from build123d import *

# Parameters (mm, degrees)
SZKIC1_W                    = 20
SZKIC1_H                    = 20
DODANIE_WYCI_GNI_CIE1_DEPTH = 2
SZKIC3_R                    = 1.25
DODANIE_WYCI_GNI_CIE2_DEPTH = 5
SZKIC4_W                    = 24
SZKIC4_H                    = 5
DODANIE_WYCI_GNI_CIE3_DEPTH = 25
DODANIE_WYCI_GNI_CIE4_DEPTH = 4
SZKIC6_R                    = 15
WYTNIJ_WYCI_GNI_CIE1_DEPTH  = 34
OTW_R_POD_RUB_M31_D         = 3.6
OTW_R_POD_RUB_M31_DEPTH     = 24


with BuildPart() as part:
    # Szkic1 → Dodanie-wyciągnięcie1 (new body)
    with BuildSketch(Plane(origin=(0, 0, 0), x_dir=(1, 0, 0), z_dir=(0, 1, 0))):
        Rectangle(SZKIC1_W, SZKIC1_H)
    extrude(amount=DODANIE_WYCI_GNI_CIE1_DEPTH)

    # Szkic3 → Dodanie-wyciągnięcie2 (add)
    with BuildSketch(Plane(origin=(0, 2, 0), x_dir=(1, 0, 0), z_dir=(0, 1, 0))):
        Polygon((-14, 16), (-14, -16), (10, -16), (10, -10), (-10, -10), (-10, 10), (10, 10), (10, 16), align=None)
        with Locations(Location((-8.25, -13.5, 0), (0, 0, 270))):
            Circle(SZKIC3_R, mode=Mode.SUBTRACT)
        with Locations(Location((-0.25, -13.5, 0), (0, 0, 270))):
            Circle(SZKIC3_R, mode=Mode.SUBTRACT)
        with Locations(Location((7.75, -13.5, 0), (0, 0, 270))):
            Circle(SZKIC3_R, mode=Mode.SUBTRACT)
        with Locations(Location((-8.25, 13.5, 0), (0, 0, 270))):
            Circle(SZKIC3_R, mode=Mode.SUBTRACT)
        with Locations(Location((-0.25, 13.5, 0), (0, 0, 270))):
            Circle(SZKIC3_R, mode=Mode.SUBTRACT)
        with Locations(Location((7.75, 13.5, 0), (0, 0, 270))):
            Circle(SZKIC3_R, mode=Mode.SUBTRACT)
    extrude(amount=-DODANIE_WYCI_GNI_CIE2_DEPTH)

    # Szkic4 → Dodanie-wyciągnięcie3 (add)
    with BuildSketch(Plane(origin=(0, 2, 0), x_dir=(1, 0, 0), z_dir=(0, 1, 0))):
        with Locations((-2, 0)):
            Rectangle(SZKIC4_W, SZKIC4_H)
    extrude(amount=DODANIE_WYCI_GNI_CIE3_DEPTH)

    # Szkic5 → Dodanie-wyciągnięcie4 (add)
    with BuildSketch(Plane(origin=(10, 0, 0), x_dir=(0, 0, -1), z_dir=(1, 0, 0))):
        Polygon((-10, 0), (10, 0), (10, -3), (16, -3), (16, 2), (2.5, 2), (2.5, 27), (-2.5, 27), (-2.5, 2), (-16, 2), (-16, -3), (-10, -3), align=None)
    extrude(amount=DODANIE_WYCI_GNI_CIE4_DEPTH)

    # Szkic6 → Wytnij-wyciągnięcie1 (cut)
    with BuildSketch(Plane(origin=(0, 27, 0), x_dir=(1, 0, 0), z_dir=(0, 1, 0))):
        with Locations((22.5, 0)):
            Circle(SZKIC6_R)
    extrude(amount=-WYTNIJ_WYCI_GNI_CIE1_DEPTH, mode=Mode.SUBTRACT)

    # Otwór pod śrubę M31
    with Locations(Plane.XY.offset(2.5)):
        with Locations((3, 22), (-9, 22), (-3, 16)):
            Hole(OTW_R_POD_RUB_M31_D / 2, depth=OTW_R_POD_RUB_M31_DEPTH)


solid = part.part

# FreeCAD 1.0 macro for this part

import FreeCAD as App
import Part
import Sketcher
from FreeCAD import Vector


def add_polygon(sketch, points):
    """Adds a closed chain of lines whose ends are joined by coincident constraints."""
    first, n = sketch.GeometryCount, len(points)
    for a, b in zip(points, points[1:] + points[:1]):
        sketch.addGeometry(Part.LineSegment(App.Vector(*a, 0), App.Vector(*b, 0)), False)
    for i in range(n):
        sketch.addConstraint(Sketcher.Constraint("Coincident", first + i, 2, first + (i + 1) % n, 1))

doc = App.newDocument("Part")
params = doc.addObject("Spreadsheet::Sheet", "Params")
for row, (alias, value) in enumerate([
    ("sketch1_width", "20 mm"),
    ("pad1_length", "2 mm"),
    ("sketch2_diameter", "2.5 mm"),
    ("sketch2_width", "24 mm"),
    ("sketch2_width2", "20 mm"),
    ("sketch2_height", "32 mm"),
    ("pad2_length", "5 mm"),
    ("sketch3_width", "24 mm"),
    ("sketch3_height", "5 mm"),
    ("pad3_length", "25 mm"),
    ("sketch4_width", "3 mm"),
    ("sketch4_width2", "5 mm"),
    ("sketch4_width3", "25 mm"),
    ("sketch4_height", "20 mm"),
    ("sketch4_height2", "6 mm"),
    ("pad4_length", "4 mm"),
    ("sketch5_diameter", "30 mm"),
    ("pocket1_length", "34 mm"),
    ("sketch6_diameter", "3.6 mm"),
    ("hole_diameter", "3.6 mm"),
    ("hole_depth", "24 mm"),
], start=1):
    params.set(f"A{row}", alias)
    params.set(f"B{row}", "=" + value)
    params.setAlias(f"B{row}", alias)

body = doc.addObject("PartDesign::Body", "Body")

sketch1 = doc.addObject("Sketcher::SketchObject", "Sketch")
body.addObject(sketch1)
sketch1.AttachmentSupport = (doc.XZ_Plane, [""])
sketch1.MapMode = "FlatFace"
add_polygon(sketch1, [(-10, -10), (-10, 10), (10, 10), (10, -10)])
sketch1.addConstraint([
    Sketcher.Constraint("Vertical", 0),
    Sketcher.Constraint("Horizontal", 1),
    Sketcher.Constraint("Vertical", 2),
    Sketcher.Constraint("Horizontal", 3),
    Sketcher.Constraint("Symmetric", 0, 2, 2, 2, -1, 1),
    Sketcher.Constraint("Equal", 3, 0),
    Sketcher.Constraint("DistanceX", 1, 1, 1, 2, 20.0),
])
sketch1.setExpression("Constraints[10]", "Params.sketch1_width")
pad1 = doc.addObject("PartDesign::Pad", "Pad")
body.addObject(pad1)
pad1.Profile = sketch1
pad1.setExpression("Length", "Params.pad1_length")
pad1.Reversed = True

sketch2 = doc.addObject("Sketcher::SketchObject", "Sketch001")
body.addObject(sketch2)
sketch2.AttachmentSupport = (doc.XZ_Plane, [""])
sketch2.MapMode = "FlatFace"
sketch2.AttachmentOffset = App.Placement(Vector(0, 0, -2), App.Rotation())
add_polygon(sketch2, [(-14, -16), (-14, 16), (10, 16), (10, 10), (-10, 10), (-10, -10), (10, -10), (10, -16)])
sketch2.addGeometry(Part.Circle(Vector(-8.25, 13.5, 0), Vector(0, 0, 1), 1.25), False)
sketch2.addGeometry(Part.Circle(Vector(-0.25, 13.5, 0), Vector(0, 0, 1), 1.25), False)
sketch2.addGeometry(Part.Circle(Vector(7.75, 13.5, 0), Vector(0, 0, 1), 1.25), False)
sketch2.addGeometry(Part.Circle(Vector(-8.25, -13.5, 0), Vector(0, 0, 1), 1.25), False)
sketch2.addGeometry(Part.Circle(Vector(-0.25, -13.5, 0), Vector(0, 0, 1), 1.25), False)
sketch2.addGeometry(Part.Circle(Vector(7.75, -13.5, 0), Vector(0, 0, 1), 1.25), False)
sketch2.addConstraint([
    Sketcher.Constraint("Vertical", 0),
    Sketcher.Constraint("Horizontal", 1),
    Sketcher.Constraint("Vertical", 2),
    Sketcher.Constraint("Horizontal", 3),
    Sketcher.Constraint("Vertical", 4),
    Sketcher.Constraint("Horizontal", 5),
    Sketcher.Constraint("Vertical", 6),
    Sketcher.Constraint("Horizontal", 7),
    Sketcher.Constraint("Equal", 8, 9),
    Sketcher.Constraint("Equal", 9, 10),
    Sketcher.Constraint("Equal", 10, 11),
    Sketcher.Constraint("Equal", 11, 12),
    Sketcher.Constraint("Equal", 12, 13),
    Sketcher.Constraint("Symmetric", 2, 2, 4, 2, -1, 1),
    Sketcher.Constraint("Symmetric", 8, 3, 11, 3, -1),
    Sketcher.Constraint("Symmetric", 9, 3, 12, 3, -1),
    Sketcher.Constraint("Symmetric", 10, 3, 13, 3, -1),
    Sketcher.Constraint("Symmetric", 1, 2, 6, 2, -1),
    Sketcher.Constraint("Horizontal", 8, 3, 9, 3),
    Sketcher.Constraint("Horizontal", 9, 3, 10, 3),
    Sketcher.Constraint("Equal", 5, 4),
    Sketcher.Constraint("Diameter", 8, 2.5),
    Sketcher.Constraint("DistanceX", 1, 1, 1, 2, 24.0),
    Sketcher.Constraint("DistanceX", 3, 2, 3, 1, 20.0),
    Sketcher.Constraint("DistanceY", 0, 1, 0, 2, 32.0),
    Sketcher.Constraint("DistanceX", 8, 3, 9, 3, 8.0),
    Sketcher.Constraint("DistanceX", 9, 3, 10, 3, 8.0),
    Sketcher.Constraint("DistanceY", 11, 3, 8, 3, 27.0),
    Sketcher.Constraint("DistanceX", 8, 3, -1, 1, 8.25),
])
sketch2.setExpression("Constraints[29]", "Params.sketch2_diameter")
sketch2.setExpression("Constraints[30]", "Params.sketch2_width")
sketch2.setExpression("Constraints[31]", "Params.sketch2_width2")
sketch2.setExpression("Constraints[32]", "Params.sketch2_height")
pad2 = doc.addObject("PartDesign::Pad", "Pad001")
body.addObject(pad2)
pad2.Profile = sketch2
pad2.setExpression("Length", "Params.pad2_length")

sketch3 = doc.addObject("Sketcher::SketchObject", "Sketch002")
body.addObject(sketch3)
sketch3.AttachmentSupport = (doc.XZ_Plane, [""])
sketch3.MapMode = "FlatFace"
sketch3.AttachmentOffset = App.Placement(Vector(0, 0, -2), App.Rotation())
add_polygon(sketch3, [(-14, -2.5), (-14, 2.5), (10, 2.5), (10, -2.5)])
sketch3.addConstraint([
    Sketcher.Constraint("Vertical", 0),
    Sketcher.Constraint("Horizontal", 1),
    Sketcher.Constraint("Vertical", 2),
    Sketcher.Constraint("Horizontal", 3),
    Sketcher.Constraint("DistanceX", 1, 1, 1, 2, 24.0),
    Sketcher.Constraint("DistanceY", 0, 1, 0, 2, 5.0),
    Sketcher.Constraint("DistanceX", 0, 2, -1, 1, 14.0),
    Sketcher.Constraint("DistanceY", -1, 1, 0, 2, 2.5),
])
sketch3.setExpression("Constraints[8]", "Params.sketch3_width")
sketch3.setExpression("Constraints[9]", "Params.sketch3_height")
pad3 = doc.addObject("PartDesign::Pad", "Pad002")
body.addObject(pad3)
pad3.Profile = sketch3
pad3.setExpression("Length", "Params.pad3_length")
pad3.Reversed = True

sketch4 = doc.addObject("Sketcher::SketchObject", "Sketch003")
body.addObject(sketch4)
sketch4.AttachmentSupport = (doc.YZ_Plane, [""])
sketch4.MapMode = "FlatFace"
sketch4.AttachmentOffset = App.Placement(Vector(0, 0, 10), App.Rotation())
add_polygon(sketch4, [(0, 10), (0, -10), (-3, -10), (-3, -16), (2, -16), (2, -2.5), (27, -2.5), (27, 2.5), (2, 2.5), (2, 16), (-3, 16), (-3, 10)])
sketch4.addConstraint([
    Sketcher.Constraint("Vertical", 0),
    Sketcher.Constraint("Horizontal", 1),
    Sketcher.Constraint("Vertical", 2),
    Sketcher.Constraint("Horizontal", 3),
    Sketcher.Constraint("Vertical", 4),
    Sketcher.Constraint("Horizontal", 5),
    Sketcher.Constraint("Vertical", 6),
    Sketcher.Constraint("Horizontal", 7),
    Sketcher.Constraint("Vertical", 8),
    Sketcher.Constraint("Horizontal", 9),
    Sketcher.Constraint("Vertical", 10),
    Sketcher.Constraint("Horizontal", 11),
    Sketcher.Constraint("Symmetric", 0, 2, 11, 2, -1, 1),
    Sketcher.Constraint("Symmetric", 4, 2, 7, 2, -1),
    Sketcher.Constraint("Symmetric", 2, 2, 9, 2, -1),
    Sketcher.Constraint("Equal", 9, 6),
    Sketcher.Constraint("DistanceX", 1, 2, 1, 1, 3.0),
    Sketcher.Constraint("DistanceX", 3, 1, 3, 2, 5.0),
    Sketcher.Constraint("DistanceX", 5, 1, 5, 2, 25.0),
    Sketcher.Constraint("DistanceY", 0, 2, 0, 1, 20.0),
    Sketcher.Constraint("DistanceY", 2, 2, 2, 1, 6.0),
])
sketch4.setExpression("Constraints[28]", "Params.sketch4_width")
sketch4.setExpression("Constraints[29]", "Params.sketch4_width2")
sketch4.setExpression("Constraints[30]", "Params.sketch4_width3")
sketch4.setExpression("Constraints[31]", "Params.sketch4_height")
sketch4.setExpression("Constraints[32]", "Params.sketch4_height2")
pad4 = doc.addObject("PartDesign::Pad", "Pad003")
body.addObject(pad4)
pad4.Profile = sketch4
pad4.setExpression("Length", "Params.pad4_length")

sketch5 = doc.addObject("Sketcher::SketchObject", "Sketch004")
body.addObject(sketch5)
sketch5.AttachmentSupport = (doc.XZ_Plane, [""])
sketch5.MapMode = "FlatFace"
sketch5.AttachmentOffset = App.Placement(Vector(0, 0, -27), App.Rotation())
sketch5.addGeometry(Part.Circle(Vector(22.5, 0, 0), Vector(0, 0, 1), 15), False)
sketch5.addConstraint([
    Sketcher.Constraint("PointOnObject", 0, 3, -1),
    Sketcher.Constraint("Diameter", 0, 30.0),
    Sketcher.Constraint("DistanceX", -1, 1, 0, 3, 22.5),
])
sketch5.setExpression("Constraints[1]", "Params.sketch5_diameter")
pocket1 = doc.addObject("PartDesign::Pocket", "Pocket")
body.addObject(pocket1)
pocket1.Profile = sketch5
pocket1.setExpression("Length", "Params.pocket1_length")
pocket1.Reversed = True

sketch6 = doc.addObject("Sketcher::SketchObject", "Sketch005")
body.addObject(sketch6)
sketch6.AttachmentSupport = (doc.XY_Plane, [""])
sketch6.MapMode = "FlatFace"
sketch6.AttachmentOffset = App.Placement(Vector(0, 0, 2.5), App.Rotation())
sketch6.addGeometry([
    Part.Circle(Vector(3, 22, 0), Vector(0, 0, 1), 1.8),
    Part.Circle(Vector(-9, 22, 0), Vector(0, 0, 1), 1.8),
    Part.Circle(Vector(-3, 16, 0), Vector(0, 0, 1), 1.8),
], False)
sketch6.addConstraint([
    Sketcher.Constraint("Equal", 0, 1),
    Sketcher.Constraint("Equal", 1, 2),
    Sketcher.Constraint("Horizontal", 0, 3, 1, 3),
    Sketcher.Constraint("Diameter", 0, 3.6),
    Sketcher.Constraint("DistanceX", -1, 1, 0, 3, 3.0),
    Sketcher.Constraint("DistanceY", -1, 1, 0, 3, 22.0),
    Sketcher.Constraint("DistanceX", 1, 3, -1, 1, 9.0),
    Sketcher.Constraint("DistanceX", 2, 3, -1, 1, 3.0),
    Sketcher.Constraint("DistanceY", -1, 1, 2, 3, 16.0),
])
sketch6.setExpression("Constraints[3]", "Params.sketch6_diameter")
doc.recompute()
hole = doc.addObject("PartDesign::Hole", "Hole")
body.addObject(hole)
hole.Profile = sketch6
hole.ThreadType = "None"
hole.setExpression("Diameter", "Params.hole_diameter")
hole.DepthType = "Dimension"
hole.setExpression("Depth", "Params.hole_depth")
hole.DrillPoint = "Flat"

doc.recompute()
